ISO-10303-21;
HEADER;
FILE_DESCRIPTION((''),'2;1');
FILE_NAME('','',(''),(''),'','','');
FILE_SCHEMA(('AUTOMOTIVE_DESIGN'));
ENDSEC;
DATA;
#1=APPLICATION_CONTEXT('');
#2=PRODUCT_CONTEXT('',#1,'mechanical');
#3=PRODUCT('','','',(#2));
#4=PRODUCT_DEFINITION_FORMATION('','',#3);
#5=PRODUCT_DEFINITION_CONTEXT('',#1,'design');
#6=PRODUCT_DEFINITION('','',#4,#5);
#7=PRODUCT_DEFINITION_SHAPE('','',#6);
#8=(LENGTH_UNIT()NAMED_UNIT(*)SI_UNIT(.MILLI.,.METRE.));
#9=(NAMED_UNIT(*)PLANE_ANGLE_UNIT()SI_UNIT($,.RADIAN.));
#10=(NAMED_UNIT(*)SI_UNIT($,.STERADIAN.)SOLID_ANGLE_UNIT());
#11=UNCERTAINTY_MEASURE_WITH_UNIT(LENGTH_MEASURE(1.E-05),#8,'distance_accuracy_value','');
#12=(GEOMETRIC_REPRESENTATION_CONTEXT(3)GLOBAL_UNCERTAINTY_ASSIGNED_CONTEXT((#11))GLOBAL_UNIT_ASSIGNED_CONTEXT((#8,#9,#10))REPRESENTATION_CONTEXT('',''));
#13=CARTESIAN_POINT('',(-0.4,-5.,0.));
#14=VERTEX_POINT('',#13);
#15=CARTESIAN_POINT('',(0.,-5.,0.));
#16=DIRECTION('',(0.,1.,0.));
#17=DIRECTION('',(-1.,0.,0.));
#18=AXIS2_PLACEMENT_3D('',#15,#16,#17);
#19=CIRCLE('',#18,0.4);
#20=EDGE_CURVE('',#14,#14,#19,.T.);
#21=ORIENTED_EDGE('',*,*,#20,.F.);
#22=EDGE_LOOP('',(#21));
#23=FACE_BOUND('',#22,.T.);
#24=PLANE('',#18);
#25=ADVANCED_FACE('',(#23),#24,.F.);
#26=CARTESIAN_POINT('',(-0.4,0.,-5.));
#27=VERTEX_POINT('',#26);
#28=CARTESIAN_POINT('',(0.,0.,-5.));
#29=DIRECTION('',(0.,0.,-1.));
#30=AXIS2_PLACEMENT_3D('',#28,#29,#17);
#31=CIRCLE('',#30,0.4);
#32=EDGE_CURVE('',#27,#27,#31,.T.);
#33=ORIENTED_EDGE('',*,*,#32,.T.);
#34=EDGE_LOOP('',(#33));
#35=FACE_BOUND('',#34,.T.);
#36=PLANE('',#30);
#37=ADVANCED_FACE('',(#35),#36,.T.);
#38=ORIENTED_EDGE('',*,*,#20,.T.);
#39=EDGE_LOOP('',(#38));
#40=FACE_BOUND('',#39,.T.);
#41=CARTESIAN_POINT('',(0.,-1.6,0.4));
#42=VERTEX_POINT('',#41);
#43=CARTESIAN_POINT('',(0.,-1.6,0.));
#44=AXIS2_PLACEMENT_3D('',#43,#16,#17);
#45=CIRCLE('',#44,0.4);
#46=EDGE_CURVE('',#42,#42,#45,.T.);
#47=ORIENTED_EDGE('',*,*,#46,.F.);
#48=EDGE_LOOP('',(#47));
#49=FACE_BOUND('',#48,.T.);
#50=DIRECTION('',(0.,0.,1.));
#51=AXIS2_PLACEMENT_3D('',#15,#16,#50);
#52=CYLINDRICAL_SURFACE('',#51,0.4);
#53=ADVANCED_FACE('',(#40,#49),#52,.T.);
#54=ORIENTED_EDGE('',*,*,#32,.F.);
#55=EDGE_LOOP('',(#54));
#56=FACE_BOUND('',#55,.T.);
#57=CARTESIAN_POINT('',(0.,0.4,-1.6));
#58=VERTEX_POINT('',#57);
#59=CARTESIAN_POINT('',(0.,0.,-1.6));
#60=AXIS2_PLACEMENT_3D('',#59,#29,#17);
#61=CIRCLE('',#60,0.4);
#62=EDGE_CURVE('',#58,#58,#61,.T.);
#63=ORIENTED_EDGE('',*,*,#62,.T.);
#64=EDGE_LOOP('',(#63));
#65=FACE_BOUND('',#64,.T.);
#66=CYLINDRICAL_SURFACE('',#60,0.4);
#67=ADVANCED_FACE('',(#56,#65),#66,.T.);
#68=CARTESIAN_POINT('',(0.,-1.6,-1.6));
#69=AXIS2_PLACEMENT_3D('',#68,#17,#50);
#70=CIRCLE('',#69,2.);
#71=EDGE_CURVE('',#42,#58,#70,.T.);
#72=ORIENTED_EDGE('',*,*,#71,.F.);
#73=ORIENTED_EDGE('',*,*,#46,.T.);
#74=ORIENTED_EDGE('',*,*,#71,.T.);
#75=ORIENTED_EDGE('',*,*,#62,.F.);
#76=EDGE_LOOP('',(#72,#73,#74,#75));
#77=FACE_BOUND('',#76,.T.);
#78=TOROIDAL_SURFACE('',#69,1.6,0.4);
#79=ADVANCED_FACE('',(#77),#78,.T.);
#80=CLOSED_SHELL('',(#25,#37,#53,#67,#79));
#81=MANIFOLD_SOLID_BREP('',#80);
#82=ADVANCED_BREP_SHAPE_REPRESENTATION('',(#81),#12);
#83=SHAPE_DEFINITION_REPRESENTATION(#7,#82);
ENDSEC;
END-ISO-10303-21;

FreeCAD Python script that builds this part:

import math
import FreeCAD as App
import Part
import Sketcher

V = App.Vector
Q = App.Units.Quantity

doc = App.newDocument("Part")
params = doc.addObject("Spreadsheet::Sheet", "Params")
for row, (alias, value) in enumerate([
    ("sketch1_diameter", "0.8 mm"),
    ("sketch2_radius", "1.6 mm"),
    ("sketch2_width", "3.4 mm"),
], start=1):
    params.set(f"A{row}", alias)
    params.set(f"B{row}", "=" + value)
    params.setAlias(f"B{row}", alias)

body = doc.addObject("PartDesign::Body", "Body")

# Sketch on XY plane
sketch1 = doc.addObject("Sketcher::SketchObject", "Sketch")
body.addObject(sketch1)
sketch1.AttachmentSupport = (doc.XY_Plane, [""])
sketch1.MapMode = "FlatFace"
sketch1.AttachmentOffset = App.Placement(V(0, 0, -5), App.Rotation())
sketch1.addGeometry(Part.Circle(V(0, 0, 0), V(0, 0, 1), 0.4), False)
sketch1.addConstraint(Sketcher.Constraint("Coincident", 0, 3, -1, 1))
sketch1.addConstraint(Sketcher.Constraint("Diameter", 0, Q("0.8 mm")))
sketch1.setExpression("Constraints[1]", "Params.sketch1_diameter")

# Sketch on YZ plane
sketch2 = doc.addObject("Sketcher::SketchObject", "Sketch001")
body.addObject(sketch2)
sketch2.AttachmentSupport = (doc.YZ_Plane, [""])
sketch2.MapMode = "FlatFace"
sketch2.addGeometry(Part.LineSegment(V(0, -5, 0), V(0, -1.6, 0)), False)
sketch2.addGeometry(Part.ArcOfCircle(Part.Circle(V(-1.6, -1.6, 0), V(0, 0, 1), 1.6), math.radians(0), math.radians(90)), False)
sketch2.addGeometry(Part.LineSegment(V(-1.6, 0, 0), V(-5, 0, 0)), False)
sketch2.addConstraint(Sketcher.Constraint("Tangent", 0, 2, 1, 1))
sketch2.addConstraint(Sketcher.Constraint("Tangent", 1, 2, 2, 1))
sketch2.addConstraint(Sketcher.Constraint("Vertical", 0))
sketch2.addConstraint(Sketcher.Constraint("Horizontal", 2))
sketch2.addConstraint(Sketcher.Constraint("PointOnObject", 0, 1, -2))
sketch2.addConstraint(Sketcher.Constraint("PointOnObject", 1, 2, -1))
sketch2.addConstraint(Sketcher.Constraint("Equal", 2, 0))
sketch2.addConstraint(Sketcher.Constraint("Radius", 1, Q("1.6 mm")))
sketch2.addConstraint(Sketcher.Constraint("DistanceX", 2, 2, 2, 1, Q("3.4 mm")))
sketch2.setExpression("Constraints[7]", "Params.sketch2_radius")
sketch2.setExpression("Constraints[8]", "Params.sketch2_width")
doc.recompute()

additivepipe = doc.addObject("PartDesign::AdditivePipe", "AdditivePipe")
body.addObject(additivepipe)
additivepipe.Profile = sketch1
additivepipe.Spine = (sketch2, ["Edge1", "Edge2", "Edge3"])

doc.recompute()
